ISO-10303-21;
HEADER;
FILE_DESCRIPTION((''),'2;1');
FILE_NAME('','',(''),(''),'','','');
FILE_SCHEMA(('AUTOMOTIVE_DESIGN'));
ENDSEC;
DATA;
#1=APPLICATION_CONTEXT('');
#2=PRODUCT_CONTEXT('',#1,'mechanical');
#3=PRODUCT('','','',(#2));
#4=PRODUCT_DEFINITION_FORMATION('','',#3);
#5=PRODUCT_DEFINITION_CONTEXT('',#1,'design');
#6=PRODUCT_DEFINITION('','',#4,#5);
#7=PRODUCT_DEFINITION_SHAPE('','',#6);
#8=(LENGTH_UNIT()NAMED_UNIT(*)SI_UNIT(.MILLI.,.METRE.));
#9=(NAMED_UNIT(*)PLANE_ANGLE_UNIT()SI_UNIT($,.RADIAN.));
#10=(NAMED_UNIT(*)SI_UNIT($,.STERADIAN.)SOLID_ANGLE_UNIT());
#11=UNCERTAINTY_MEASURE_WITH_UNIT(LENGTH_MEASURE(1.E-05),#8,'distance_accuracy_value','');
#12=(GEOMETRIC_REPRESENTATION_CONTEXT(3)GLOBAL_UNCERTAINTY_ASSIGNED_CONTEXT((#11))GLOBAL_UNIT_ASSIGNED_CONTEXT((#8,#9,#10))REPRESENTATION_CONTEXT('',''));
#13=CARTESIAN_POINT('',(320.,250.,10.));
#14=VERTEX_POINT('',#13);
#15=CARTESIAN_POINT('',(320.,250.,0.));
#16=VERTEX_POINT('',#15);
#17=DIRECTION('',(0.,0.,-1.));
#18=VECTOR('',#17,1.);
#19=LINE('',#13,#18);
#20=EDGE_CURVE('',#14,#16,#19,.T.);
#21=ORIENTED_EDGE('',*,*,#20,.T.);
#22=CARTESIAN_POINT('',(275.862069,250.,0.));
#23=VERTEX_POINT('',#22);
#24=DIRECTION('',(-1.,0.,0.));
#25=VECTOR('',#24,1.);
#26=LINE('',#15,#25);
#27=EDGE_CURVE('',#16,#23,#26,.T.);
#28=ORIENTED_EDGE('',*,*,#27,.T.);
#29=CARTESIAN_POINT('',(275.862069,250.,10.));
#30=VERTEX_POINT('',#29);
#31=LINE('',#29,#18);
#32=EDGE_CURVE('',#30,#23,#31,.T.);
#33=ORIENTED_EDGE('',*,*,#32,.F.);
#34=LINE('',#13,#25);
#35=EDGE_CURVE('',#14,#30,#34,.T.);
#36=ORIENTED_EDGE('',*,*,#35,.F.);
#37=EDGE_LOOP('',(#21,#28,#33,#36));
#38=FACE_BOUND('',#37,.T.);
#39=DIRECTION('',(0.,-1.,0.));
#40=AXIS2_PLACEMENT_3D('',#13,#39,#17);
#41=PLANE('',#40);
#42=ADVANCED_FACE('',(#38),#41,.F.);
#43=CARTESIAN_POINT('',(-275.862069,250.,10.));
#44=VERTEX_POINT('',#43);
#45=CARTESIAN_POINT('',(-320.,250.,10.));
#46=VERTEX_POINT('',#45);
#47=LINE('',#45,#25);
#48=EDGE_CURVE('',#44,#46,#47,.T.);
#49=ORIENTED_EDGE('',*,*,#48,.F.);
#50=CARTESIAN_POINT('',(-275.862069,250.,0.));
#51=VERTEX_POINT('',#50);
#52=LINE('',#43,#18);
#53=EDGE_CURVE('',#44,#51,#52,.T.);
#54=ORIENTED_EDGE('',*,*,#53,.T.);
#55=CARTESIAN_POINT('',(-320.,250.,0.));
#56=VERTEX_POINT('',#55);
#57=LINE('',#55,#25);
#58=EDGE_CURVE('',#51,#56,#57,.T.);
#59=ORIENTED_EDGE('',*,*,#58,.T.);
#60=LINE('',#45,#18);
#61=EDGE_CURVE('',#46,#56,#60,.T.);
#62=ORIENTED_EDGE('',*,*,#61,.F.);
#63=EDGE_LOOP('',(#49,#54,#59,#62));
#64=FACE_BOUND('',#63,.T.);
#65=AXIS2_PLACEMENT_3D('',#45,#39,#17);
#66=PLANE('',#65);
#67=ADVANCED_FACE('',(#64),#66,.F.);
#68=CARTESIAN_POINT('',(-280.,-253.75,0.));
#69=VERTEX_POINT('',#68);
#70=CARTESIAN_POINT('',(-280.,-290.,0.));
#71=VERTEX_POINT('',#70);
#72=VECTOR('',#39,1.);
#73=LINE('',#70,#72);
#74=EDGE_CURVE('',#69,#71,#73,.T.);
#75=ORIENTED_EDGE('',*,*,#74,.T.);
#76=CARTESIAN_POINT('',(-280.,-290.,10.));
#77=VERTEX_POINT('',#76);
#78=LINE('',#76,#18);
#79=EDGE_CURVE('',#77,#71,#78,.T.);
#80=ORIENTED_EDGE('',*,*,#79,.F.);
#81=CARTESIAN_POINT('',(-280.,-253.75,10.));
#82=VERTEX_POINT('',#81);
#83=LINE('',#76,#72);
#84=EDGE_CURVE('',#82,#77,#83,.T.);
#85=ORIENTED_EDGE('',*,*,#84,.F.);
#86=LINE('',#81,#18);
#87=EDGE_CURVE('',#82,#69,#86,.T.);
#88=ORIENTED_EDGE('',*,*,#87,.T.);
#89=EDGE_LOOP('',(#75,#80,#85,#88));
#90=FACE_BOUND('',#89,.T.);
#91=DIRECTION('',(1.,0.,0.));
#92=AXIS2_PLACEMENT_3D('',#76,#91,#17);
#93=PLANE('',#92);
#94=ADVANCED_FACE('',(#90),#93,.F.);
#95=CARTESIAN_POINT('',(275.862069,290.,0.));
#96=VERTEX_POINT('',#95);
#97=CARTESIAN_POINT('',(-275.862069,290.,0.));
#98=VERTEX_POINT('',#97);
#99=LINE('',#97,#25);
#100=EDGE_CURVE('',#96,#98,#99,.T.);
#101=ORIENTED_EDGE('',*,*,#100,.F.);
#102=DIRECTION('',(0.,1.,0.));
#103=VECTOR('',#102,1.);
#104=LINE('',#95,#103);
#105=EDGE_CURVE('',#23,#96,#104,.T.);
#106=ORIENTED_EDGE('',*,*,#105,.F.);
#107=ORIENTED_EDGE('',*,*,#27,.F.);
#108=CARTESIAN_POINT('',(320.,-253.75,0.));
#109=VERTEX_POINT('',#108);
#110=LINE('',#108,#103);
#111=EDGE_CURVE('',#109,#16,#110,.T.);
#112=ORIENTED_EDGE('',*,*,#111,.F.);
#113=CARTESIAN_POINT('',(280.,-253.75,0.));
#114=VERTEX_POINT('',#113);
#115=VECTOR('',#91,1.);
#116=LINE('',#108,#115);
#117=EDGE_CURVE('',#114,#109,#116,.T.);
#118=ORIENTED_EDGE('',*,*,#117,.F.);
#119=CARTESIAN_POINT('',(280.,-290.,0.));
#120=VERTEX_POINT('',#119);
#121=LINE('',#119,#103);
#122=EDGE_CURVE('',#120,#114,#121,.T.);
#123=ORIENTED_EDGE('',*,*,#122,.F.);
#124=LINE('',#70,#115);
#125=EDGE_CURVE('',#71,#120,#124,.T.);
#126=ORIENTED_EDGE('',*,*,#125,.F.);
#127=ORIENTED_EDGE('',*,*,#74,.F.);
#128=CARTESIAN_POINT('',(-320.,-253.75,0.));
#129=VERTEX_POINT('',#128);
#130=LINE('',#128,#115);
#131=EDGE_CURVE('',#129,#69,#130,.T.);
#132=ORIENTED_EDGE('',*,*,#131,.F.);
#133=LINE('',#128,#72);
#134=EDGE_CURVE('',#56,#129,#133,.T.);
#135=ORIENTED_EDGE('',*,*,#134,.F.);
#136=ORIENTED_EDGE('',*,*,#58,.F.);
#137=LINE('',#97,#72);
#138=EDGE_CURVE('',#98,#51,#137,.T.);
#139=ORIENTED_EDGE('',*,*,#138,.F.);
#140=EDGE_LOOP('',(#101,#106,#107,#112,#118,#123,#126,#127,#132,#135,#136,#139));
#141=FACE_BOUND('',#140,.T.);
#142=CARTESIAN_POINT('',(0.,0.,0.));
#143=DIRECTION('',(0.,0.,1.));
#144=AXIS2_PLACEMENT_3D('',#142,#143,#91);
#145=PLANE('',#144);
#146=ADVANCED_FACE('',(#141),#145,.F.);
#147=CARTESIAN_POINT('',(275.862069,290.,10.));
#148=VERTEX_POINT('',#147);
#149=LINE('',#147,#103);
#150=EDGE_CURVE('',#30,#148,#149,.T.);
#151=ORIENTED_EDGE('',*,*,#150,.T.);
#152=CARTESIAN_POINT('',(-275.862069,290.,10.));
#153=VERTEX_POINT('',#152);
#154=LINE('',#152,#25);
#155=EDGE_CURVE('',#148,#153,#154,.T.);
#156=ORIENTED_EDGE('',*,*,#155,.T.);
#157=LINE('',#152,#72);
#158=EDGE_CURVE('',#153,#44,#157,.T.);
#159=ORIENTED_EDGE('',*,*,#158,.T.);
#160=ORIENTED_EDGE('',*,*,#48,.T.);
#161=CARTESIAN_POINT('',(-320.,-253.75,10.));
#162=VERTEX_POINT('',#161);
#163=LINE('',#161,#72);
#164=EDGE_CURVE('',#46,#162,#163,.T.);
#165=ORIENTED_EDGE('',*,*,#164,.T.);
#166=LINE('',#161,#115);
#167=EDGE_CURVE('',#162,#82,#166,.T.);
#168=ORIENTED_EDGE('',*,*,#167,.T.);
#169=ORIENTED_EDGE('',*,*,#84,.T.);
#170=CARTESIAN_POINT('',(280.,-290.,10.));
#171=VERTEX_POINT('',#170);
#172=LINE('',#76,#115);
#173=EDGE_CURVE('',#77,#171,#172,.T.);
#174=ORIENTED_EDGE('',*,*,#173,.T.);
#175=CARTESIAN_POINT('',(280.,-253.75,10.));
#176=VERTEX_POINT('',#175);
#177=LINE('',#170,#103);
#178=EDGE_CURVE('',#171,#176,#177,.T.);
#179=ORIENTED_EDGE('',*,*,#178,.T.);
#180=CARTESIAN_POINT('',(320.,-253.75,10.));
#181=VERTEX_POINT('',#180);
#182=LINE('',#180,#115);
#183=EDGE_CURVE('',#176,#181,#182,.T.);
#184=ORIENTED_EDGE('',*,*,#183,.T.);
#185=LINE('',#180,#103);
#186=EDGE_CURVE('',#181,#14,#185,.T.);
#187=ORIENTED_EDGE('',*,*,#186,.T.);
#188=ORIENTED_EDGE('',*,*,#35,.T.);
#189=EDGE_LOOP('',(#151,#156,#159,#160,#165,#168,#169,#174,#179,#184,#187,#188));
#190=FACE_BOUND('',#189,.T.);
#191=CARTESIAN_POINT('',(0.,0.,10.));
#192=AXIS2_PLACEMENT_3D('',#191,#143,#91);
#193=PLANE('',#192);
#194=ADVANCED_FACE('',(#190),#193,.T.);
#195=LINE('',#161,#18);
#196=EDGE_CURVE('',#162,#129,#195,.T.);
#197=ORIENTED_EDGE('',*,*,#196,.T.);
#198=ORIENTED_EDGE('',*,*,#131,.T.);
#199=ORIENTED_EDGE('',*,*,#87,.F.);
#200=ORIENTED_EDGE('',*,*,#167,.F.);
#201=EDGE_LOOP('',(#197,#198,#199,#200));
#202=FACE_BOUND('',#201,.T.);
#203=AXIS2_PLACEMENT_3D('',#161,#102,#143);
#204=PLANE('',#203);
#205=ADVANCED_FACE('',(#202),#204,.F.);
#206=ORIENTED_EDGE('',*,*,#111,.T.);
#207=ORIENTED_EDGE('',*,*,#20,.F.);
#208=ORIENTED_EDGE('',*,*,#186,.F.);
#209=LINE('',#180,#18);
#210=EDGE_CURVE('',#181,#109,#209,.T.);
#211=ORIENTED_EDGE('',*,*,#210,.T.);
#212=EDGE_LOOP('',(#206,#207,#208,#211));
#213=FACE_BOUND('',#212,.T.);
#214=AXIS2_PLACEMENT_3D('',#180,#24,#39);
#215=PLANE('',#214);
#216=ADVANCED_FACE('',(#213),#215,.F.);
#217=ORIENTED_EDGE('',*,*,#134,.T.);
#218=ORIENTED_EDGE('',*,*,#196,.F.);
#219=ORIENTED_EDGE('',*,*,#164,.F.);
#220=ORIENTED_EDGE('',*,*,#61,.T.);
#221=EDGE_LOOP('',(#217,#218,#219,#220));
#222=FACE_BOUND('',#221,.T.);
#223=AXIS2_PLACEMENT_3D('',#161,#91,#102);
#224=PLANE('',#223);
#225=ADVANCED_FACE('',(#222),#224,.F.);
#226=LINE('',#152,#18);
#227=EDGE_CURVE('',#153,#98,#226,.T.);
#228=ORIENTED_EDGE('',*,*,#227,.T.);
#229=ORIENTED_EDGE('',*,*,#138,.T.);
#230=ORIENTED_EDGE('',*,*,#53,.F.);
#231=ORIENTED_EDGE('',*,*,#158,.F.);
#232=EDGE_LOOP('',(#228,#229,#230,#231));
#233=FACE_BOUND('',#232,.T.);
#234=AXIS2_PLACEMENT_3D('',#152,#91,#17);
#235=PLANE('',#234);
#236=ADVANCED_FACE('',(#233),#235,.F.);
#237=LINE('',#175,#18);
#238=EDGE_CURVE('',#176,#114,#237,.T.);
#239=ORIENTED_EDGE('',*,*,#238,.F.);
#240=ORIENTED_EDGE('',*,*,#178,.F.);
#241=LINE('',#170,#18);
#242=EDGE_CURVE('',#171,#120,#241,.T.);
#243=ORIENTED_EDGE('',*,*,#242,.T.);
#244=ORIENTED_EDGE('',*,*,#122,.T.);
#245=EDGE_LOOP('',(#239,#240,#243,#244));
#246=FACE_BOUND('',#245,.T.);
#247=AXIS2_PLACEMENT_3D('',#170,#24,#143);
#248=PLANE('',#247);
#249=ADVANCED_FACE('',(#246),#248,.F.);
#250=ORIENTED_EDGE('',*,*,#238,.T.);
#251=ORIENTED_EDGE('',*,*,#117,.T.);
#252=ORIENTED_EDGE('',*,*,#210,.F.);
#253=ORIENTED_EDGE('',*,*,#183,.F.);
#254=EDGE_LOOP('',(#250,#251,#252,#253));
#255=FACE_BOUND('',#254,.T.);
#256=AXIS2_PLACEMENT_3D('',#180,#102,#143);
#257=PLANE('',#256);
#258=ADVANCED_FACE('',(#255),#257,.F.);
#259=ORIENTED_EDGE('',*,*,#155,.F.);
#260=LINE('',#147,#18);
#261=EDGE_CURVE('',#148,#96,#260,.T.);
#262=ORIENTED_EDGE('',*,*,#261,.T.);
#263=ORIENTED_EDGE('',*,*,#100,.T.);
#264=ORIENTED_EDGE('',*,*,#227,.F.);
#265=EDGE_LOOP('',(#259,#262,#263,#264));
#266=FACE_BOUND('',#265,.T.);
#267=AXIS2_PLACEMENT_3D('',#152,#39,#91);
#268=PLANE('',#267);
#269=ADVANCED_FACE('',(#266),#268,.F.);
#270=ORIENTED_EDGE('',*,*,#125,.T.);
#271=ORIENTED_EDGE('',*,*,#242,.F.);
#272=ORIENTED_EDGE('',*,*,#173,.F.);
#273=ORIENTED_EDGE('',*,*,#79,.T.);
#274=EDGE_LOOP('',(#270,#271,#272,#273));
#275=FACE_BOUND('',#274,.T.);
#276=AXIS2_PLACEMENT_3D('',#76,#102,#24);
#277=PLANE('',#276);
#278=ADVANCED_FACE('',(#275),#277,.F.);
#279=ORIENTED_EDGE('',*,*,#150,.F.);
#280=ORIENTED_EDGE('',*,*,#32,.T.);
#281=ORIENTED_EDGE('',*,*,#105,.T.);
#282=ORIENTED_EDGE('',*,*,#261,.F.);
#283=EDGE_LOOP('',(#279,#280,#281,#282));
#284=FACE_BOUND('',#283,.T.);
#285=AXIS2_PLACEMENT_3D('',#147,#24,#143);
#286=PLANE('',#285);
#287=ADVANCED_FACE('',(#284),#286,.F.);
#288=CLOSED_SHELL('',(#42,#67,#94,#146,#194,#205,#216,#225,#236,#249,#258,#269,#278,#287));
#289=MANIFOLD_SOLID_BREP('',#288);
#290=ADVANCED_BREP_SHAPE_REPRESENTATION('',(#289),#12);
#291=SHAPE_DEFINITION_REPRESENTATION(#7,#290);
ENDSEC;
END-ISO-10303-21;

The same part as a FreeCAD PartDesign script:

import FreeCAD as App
import Part
import Sketcher
Q = App.Units.Quantity

doc = App.newDocument("Part")
body = doc.addObject("PartDesign::Body", "Body")

# Sketch on XY plane
sketch1 = body.newObject("Sketcher::SketchObject", "Sketch")
sketch1.AttachmentSupport = (doc.getObject("XY_Plane"), [""])
sketch1.MapMode = "FlatFace"
sketch1.addGeometry([
    Part.LineSegment(App.Vector(-280, -290, 0), App.Vector(280, -290, 0)),  # 0
    Part.LineSegment(App.Vector(280, -290, 0), App.Vector(280, -254, 0)),  # 1
    Part.LineSegment(App.Vector(280, -254, 0), App.Vector(320, -254, 0)),  # 2
    Part.LineSegment(App.Vector(320, -254, 0), App.Vector(320, 250, 0)),  # 3
    Part.LineSegment(App.Vector(320, 250, 0), App.Vector(276, 250, 0)),  # 4
    Part.LineSegment(App.Vector(276, 250, 0), App.Vector(276, 290, 0)),  # 5
    Part.LineSegment(App.Vector(276, 290, 0), App.Vector(-276, 290, 0)),  # 6
    Part.LineSegment(App.Vector(-276, 290, 0), App.Vector(-276, 250, 0)),  # 7
    Part.LineSegment(App.Vector(-276, 250, 0), App.Vector(-320, 250, 0)),  # 8
    Part.LineSegment(App.Vector(-320, 250, 0), App.Vector(-320, -254, 0)),  # 9
    Part.LineSegment(App.Vector(-320, -254, 0), App.Vector(-280, -254, 0)),  # 10
    Part.LineSegment(App.Vector(-280, -254, 0), App.Vector(-280, -290, 0)),  # 11
], False)
sketch1.addConstraint([
    Sketcher.Constraint("Coincident", 0, 2, 1, 1),
    Sketcher.Constraint("Coincident", 1, 2, 2, 1),
    Sketcher.Constraint("Coincident", 2, 2, 3, 1),
    Sketcher.Constraint("Coincident", 3, 2, 4, 1),
    Sketcher.Constraint("Coincident", 4, 2, 5, 1),
    Sketcher.Constraint("Coincident", 5, 2, 6, 1),
    Sketcher.Constraint("Coincident", 6, 2, 7, 1),
    Sketcher.Constraint("Coincident", 7, 2, 8, 1),
    Sketcher.Constraint("Coincident", 8, 2, 9, 1),
    Sketcher.Constraint("Coincident", 9, 2, 10, 1),
    Sketcher.Constraint("Coincident", 10, 2, 11, 1),
    Sketcher.Constraint("Coincident", 11, 2, 0, 1),
    Sketcher.Constraint("Horizontal", 0),
    Sketcher.Constraint("Vertical", 1),
    Sketcher.Constraint("Horizontal", 2),
    Sketcher.Constraint("Vertical", 3),
    Sketcher.Constraint("Horizontal", 4),
    Sketcher.Constraint("Vertical", 5),
    Sketcher.Constraint("Horizontal", 6),
    Sketcher.Constraint("Vertical", 7),
    Sketcher.Constraint("Horizontal", 8),
    Sketcher.Constraint("Vertical", 9),
    Sketcher.Constraint("Horizontal", 10),
    Sketcher.Constraint("Vertical", 11),
    Sketcher.Constraint("Symmetric", 4, 2, 7, 2, -2),
    Sketcher.Constraint("Symmetric", 2, 2, 9, 2, -2),
    Sketcher.Constraint("Equal", 2, 10),
    Sketcher.Constraint("Equal", 10, 5),
    Sketcher.Constraint("DistanceX", 0, 1, 0, 2, Q("560 mm")),
    Sketcher.Constraint("DistanceX", 2, 1, 2, 2, Q("40 mm")),
    Sketcher.Constraint("DistanceY", 0, 2, -1, 1, Q("290 mm")),
    Sketcher.Constraint("DistanceY", -1, 1, 3, 2, Q("250 mm")),
    Sketcher.Constraint("DistanceY", 1, 1, 1, 2, Q("36.25 mm")),
    Sketcher.Constraint("DistanceX", 4, 2, 4, 1, Q("44.137931 mm")),
])
pad1 = body.newObject("PartDesign::Pad", "Pad")
pad1.Profile = sketch1
pad1.Length = 10

doc.recompute()
